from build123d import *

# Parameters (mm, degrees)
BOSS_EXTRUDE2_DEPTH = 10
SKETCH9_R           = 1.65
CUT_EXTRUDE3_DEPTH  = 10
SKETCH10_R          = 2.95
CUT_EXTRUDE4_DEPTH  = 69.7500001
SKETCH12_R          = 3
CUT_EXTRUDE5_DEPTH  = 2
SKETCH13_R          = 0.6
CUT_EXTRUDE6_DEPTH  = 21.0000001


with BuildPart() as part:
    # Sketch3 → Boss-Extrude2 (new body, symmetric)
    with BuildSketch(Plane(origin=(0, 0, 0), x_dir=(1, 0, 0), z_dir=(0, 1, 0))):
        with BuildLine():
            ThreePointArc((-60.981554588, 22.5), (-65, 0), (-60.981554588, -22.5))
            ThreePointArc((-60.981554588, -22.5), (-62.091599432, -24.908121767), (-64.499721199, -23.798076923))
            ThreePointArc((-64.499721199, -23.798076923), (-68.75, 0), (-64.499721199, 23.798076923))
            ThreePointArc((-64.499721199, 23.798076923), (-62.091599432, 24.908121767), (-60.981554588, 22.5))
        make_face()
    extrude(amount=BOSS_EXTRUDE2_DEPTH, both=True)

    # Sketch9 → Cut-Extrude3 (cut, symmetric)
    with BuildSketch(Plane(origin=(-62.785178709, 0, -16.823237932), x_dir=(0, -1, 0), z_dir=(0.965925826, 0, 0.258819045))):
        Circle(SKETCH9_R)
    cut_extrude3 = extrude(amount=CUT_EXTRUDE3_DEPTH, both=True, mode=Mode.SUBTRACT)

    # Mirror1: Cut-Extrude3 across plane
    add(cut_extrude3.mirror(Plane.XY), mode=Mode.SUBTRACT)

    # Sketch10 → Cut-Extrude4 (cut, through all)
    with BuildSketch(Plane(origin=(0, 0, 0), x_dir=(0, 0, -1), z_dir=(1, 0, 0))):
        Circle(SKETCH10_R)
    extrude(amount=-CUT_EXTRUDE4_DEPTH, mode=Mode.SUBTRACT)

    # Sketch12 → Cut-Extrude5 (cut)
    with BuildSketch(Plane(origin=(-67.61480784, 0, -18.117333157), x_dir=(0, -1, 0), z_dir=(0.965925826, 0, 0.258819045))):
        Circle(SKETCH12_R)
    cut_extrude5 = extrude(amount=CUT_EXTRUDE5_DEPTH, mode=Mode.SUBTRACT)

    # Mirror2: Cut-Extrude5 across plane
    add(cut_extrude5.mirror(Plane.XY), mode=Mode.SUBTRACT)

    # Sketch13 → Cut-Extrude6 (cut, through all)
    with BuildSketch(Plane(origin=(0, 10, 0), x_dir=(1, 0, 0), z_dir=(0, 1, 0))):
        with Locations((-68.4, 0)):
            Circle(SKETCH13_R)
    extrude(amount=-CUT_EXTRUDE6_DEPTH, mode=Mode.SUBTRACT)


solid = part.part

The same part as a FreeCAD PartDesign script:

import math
import FreeCAD as App
import Part
import Sketcher
from FreeCAD import Vector
Q = App.Units.Quantity

doc = App.newDocument("Part")
body = doc.addObject("PartDesign::Body", "Body")

# Sketch on XZ plane
sketch1 = body.newObject("Sketcher::SketchObject", "Sketch")
sketch1.AttachmentSupport = (doc.getObject("XZ_Plane"), [""])
sketch1.MapMode = "FlatFace"
sketch1.addGeometry(Part.ArcOfCircle(Part.Circle(Vector(0, 0, 0), Vector(0, 0, 1), 65), math.radians(160), math.radians(200)), False)
sketch1.addGeometry(Part.ArcOfCircle(Part.Circle(Vector(-62.7, -23.1, 0), Vector(0, 0, 1), 1.9), math.radians(-160), math.radians(20)), False)
sketch1.addGeometry(Part.ArcOfCircle(Part.Circle(Vector(0, 0, 0), Vector(0, 0, 1), 68.7), math.radians(160), math.radians(200)), False)
sketch1.addGeometry(Part.ArcOfCircle(Part.Circle(Vector(-62.7, 23.1, 0), Vector(0, 0, 1), 1.9), math.radians(-20), math.radians(160)), False)
sketch1.addConstraint(Sketcher.Constraint("Tangent", 0, 2, 1, 2))
sketch1.addConstraint(Sketcher.Constraint("Tangent", 1, 1, 2, 2))
sketch1.addConstraint(Sketcher.Constraint("Tangent", 2, 1, 3, 2))
sketch1.addConstraint(Sketcher.Constraint("Tangent", 3, 1, 0, 1))
sketch1.addConstraint(Sketcher.Constraint("Coincident", 0, 3, -1, 1))
sketch1.addConstraint(Sketcher.Constraint("Coincident", 2, 3, -1, 1))
sketch1.addConstraint(Sketcher.Constraint("Vertical", 1, 3, 3, 3))
sketch1.addConstraint(Sketcher.Constraint("Radius", 0, Q("65 mm")))
sketch1.addConstraint(Sketcher.Constraint("Radius", 2, Q("68.75 mm")))
sketch1.addConstraint(Sketcher.Constraint("DistanceY", 0, 2, 3, 1, Q("45 mm")))
pad1 = body.newObject("PartDesign::Pad", "Pad")
pad1.Profile = sketch1
pad1.Length = 20
pad1.Midplane = True

# Sketch on an angled plane
sketch2 = body.newObject("Sketcher::SketchObject", "Sketch001")
sketch2.Placement = App.Placement(Vector(-62.785179, 0, -16.823238), App.Rotation(Vector(0, -1, 0), Vector(0.258819045, 0, -0.965925826), Vector(0.965925826, 0, 0.258819045), "ZXY"))
sketch2.addGeometry(Part.Circle(Vector(0, 0, 0), Vector(0, 0, 1), 1.6), False)
sketch2.addConstraint(Sketcher.Constraint("Coincident", 0, 3, -1, 1))
sketch2.addConstraint(Sketcher.Constraint("Diameter", 0, Q("3.3 mm")))
pocket1 = body.newObject("PartDesign::Pocket", "Pocket")
pocket1.Profile = sketch2
pocket1.Length = 20
pocket1.Midplane = True
doc.recompute()

mirrored = body.newObject("PartDesign::Mirrored", "Mirrored")
mirrored.Originals = [pocket1]
mirrored.MirrorPlane = (doc.getObject("XY_Plane"), [""])
body.Tip = mirrored

# Sketch on YZ plane
sketch3 = body.newObject("Sketcher::SketchObject", "Sketch002")
sketch3.AttachmentSupport = (doc.getObject("YZ_Plane"), [""])
sketch3.MapMode = "FlatFace"
sketch3.addGeometry(Part.Circle(Vector(0, 0, 0), Vector(0, 0, 1), 3), False)
sketch3.addConstraint(Sketcher.Constraint("Coincident", 0, 3, -1, 1))
sketch3.addConstraint(Sketcher.Constraint("Diameter", 0, Q("5.9 mm")))
pocket2 = body.newObject("PartDesign::Pocket", "Pocket001")
pocket2.Profile = sketch3
pocket2.Type = "ThroughAll"

# Sketch on an angled plane
sketch4 = body.newObject("Sketcher::SketchObject", "Sketch003")
sketch4.Placement = App.Placement(Vector(-67.614808, 0, -18.117333), App.Rotation(Vector(0, -1, 0), Vector(0.258819045, 0, -0.965925826), Vector(0.965925826, 0, 0.258819045), "ZXY"))
sketch4.addGeometry(Part.Circle(Vector(0, 0, 0), Vector(0, 0, 1), 3), False)
sketch4.addConstraint(Sketcher.Constraint("Coincident", 0, 3, -1, 1))
sketch4.addConstraint(Sketcher.Constraint("Diameter", 0, Q("6 mm")))
pocket3 = body.newObject("PartDesign::Pocket", "Pocket002")
pocket3.Profile = sketch4
pocket3.Length = 2
pocket3.Reversed = True
doc.recompute()

mirrored2 = body.newObject("PartDesign::Mirrored", "Mirrored001")
mirrored2.Originals = [pocket3]
mirrored2.MirrorPlane = (doc.getObject("XY_Plane"), [""])
body.Tip = mirrored2

# Sketch on XZ plane
sketch5 = body.newObject("Sketcher::SketchObject", "Sketch004")
sketch5.AttachmentSupport = (doc.getObject("XZ_Plane"), [""])
sketch5.MapMode = "FlatFace"
sketch5.AttachmentOffset = App.Placement(Vector(0, 0, -10), App.Rotation())
sketch5.addGeometry(Part.Circle(Vector(-68.4, 0, 0), Vector(0, 0, 1), 0.6), False)
sketch5.addConstraint(Sketcher.Constraint("PointOnObject", 0, 3, -1))
sketch5.addConstraint(Sketcher.Constraint("Diameter", 0, Q("1.2 mm")))
sketch5.addConstraint(Sketcher.Constraint("DistanceX", 0, 3, -1, 1, Q("68.4 mm")))
pocket4 = body.newObject("PartDesign::Pocket", "Pocket003")
pocket4.Profile = sketch5
pocket4.Type = "ThroughAll"
pocket4.Reversed = True

doc.recompute()
